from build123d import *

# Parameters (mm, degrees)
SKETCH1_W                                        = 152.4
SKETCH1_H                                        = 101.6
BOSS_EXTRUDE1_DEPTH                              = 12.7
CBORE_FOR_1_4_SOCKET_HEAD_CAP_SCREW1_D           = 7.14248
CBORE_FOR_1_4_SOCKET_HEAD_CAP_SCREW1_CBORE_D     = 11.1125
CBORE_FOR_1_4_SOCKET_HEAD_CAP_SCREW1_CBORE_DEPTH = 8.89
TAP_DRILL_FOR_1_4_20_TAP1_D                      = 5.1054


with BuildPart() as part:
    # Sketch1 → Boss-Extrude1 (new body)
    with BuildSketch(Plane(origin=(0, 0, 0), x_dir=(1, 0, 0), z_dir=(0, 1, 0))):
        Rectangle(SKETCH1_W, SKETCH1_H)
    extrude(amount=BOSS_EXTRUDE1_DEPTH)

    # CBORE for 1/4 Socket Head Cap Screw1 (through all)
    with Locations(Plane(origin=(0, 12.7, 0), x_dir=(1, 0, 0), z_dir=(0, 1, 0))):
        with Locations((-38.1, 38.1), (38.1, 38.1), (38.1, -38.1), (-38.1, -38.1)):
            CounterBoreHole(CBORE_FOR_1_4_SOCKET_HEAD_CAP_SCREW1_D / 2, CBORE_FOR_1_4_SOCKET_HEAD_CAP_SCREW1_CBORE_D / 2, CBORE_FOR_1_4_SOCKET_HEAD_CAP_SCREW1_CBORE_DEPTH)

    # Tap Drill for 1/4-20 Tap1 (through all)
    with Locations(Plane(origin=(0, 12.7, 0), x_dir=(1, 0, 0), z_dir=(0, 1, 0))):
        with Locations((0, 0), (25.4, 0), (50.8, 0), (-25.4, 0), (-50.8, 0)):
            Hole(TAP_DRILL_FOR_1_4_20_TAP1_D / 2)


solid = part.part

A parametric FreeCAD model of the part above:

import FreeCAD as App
import Part
import Sketcher
Q = App.Units.Quantity

doc = App.newDocument("Part")
body = doc.addObject("PartDesign::Body", "Body")

# Sketch on XZ plane
sketch1 = body.newObject("Sketcher::SketchObject", "Sketch")
sketch1.AttachmentSupport = (doc.getObject("XZ_Plane"), [""])
sketch1.MapMode = "FlatFace"
sketch1.addGeometry([
    Part.LineSegment(App.Vector(-76, -51, 0), App.Vector(-76, 51, 0)),
    Part.LineSegment(App.Vector(-76, 51, 0), App.Vector(76, 51, 0)),
    Part.LineSegment(App.Vector(76, 51, 0), App.Vector(76, -51, 0)),
    Part.LineSegment(App.Vector(76, -51, 0), App.Vector(-76, -51, 0)),
], False)
sketch1.addConstraint([
    Sketcher.Constraint("Coincident", 0, 2, 1, 1),
    Sketcher.Constraint("Coincident", 1, 2, 2, 1),
    Sketcher.Constraint("Coincident", 2, 2, 3, 1),
    Sketcher.Constraint("Coincident", 3, 2, 0, 1),
    Sketcher.Constraint("Vertical", 0),
    Sketcher.Constraint("Horizontal", 1),
    Sketcher.Constraint("Vertical", 2),
    Sketcher.Constraint("Horizontal", 3),
    Sketcher.Constraint("Symmetric", 0, 2, 2, 2, -1, 1),
    Sketcher.Constraint("DistanceX", 1, 1, 1, 2, Q("6 in")),
    Sketcher.Constraint("DistanceY", 0, 1, 0, 2, Q("4 in")),
])
pad1 = body.newObject("PartDesign::Pad", "Pad")
pad1.Profile = sketch1
pad1.Length = Q("0.5 in")
pad1.Reversed = True

# Sketch on XZ plane
sketch2 = body.newObject("Sketcher::SketchObject", "Sketch001")
sketch2.AttachmentSupport = (doc.getObject("XZ_Plane"), [""])
sketch2.MapMode = "FlatFace"
sketch2.AttachmentOffset = App.Placement(App.Vector(0, 0, -0.5 * 25.4), App.Rotation())
sketch2.addGeometry([
    Part.Circle(App.Vector(-38.1, -38.1, 0), App.Vector(0, 0, 1), 3.6),
    Part.Circle(App.Vector(38.1, -38.1, 0), App.Vector(0, 0, 1), 3.6),
    Part.Circle(App.Vector(38.1, 38.1, 0), App.Vector(0, 0, 1), 3.6),
    Part.Circle(App.Vector(-38.1, 38.1, 0), App.Vector(0, 0, 1), 3.6),
], False)
sketch2.addConstraint([
    Sketcher.Constraint("Equal", 0, 1),
    Sketcher.Constraint("Equal", 1, 2),
    Sketcher.Constraint("Equal", 2, 3),
    Sketcher.Constraint("Symmetric", 0, 3, 2, 3, -1, 1),
    Sketcher.Constraint("Symmetric", 1, 3, 3, 3, -1, 1),
    Sketcher.Constraint("Symmetric", 0, 3, 1, 3, -2),
    Sketcher.Constraint("DistanceX", 0, 3, 1, 3, Q("3 in")),
    Sketcher.Constraint("DistanceY", 1, 3, 2, 3, Q("3 in")),
    Sketcher.Constraint("Diameter", 0, Q("0.2812 in")),
])
doc.recompute()
hole = body.newObject("PartDesign::Hole", "Hole")
hole.Profile = sketch2
hole.ThreadType = "None"
hole.Diameter = Q("0.2812 in")
hole.DepthType = "ThroughAll"
hole.HoleCutType = "Counterbore"
hole.HoleCutDiameter = Q("0.4375 in")
hole.HoleCutDepth = Q("0.35 in")
hole.Reversed = True

# Sketch on XZ plane
sketch3 = body.newObject("Sketcher::SketchObject", "Sketch002")
sketch3.AttachmentSupport = (doc.getObject("XZ_Plane"), [""])
sketch3.MapMode = "FlatFace"
sketch3.AttachmentOffset = App.Placement(App.Vector(0, 0, -0.5 * 25.4), App.Rotation())
sketch3.addGeometry([
    Part.Circle(App.Vector(0, 0, 0), App.Vector(0, 0, 1), 2.6),  # 0
    Part.Circle(App.Vector(25.4, 0, 0), App.Vector(0, 0, 1), 2.6),  # 1
    Part.Circle(App.Vector(50.8, 0, 0), App.Vector(0, 0, 1), 2.6),  # 2
    Part.Circle(App.Vector(-25.4, 0, 0), App.Vector(0, 0, 1), 2.6),  # 3
    Part.Circle(App.Vector(-50.8, 0, 0), App.Vector(0, 0, 1), 2.6),  # 4
], False)
sketch3.addConstraint([
    Sketcher.Constraint("Coincident", 0, 3, -1, 1),
    Sketcher.Constraint("Equal", 0, 1),
    Sketcher.Constraint("Equal", 1, 2),
    Sketcher.Constraint("Equal", 2, 3),
    Sketcher.Constraint("Equal", 3, 4),
    Sketcher.Constraint("Symmetric", 1, 3, 3, 3, -1, 1),
    Sketcher.Constraint("Symmetric", 2, 3, 4, 3, -1, 1),
    Sketcher.Constraint("PointOnObject", 1, 3, -1),
    Sketcher.Constraint("PointOnObject", 2, 3, -1),
    Sketcher.Constraint("Diameter", 0, Q("0.201 in")),
    Sketcher.Constraint("DistanceX", -1, 1, 1, 3, Q("1 in")),
    Sketcher.Constraint("DistanceX", -1, 1, 2, 3, Q("2 in")),
])
doc.recompute()
hole2 = body.newObject("PartDesign::Hole", "Hole001")
hole2.Profile = sketch3
hole2.ThreadType = "None"
hole2.Diameter = Q("0.201 in")
hole2.DepthType = "ThroughAll"
hole2.Reversed = True

doc.recompute()
